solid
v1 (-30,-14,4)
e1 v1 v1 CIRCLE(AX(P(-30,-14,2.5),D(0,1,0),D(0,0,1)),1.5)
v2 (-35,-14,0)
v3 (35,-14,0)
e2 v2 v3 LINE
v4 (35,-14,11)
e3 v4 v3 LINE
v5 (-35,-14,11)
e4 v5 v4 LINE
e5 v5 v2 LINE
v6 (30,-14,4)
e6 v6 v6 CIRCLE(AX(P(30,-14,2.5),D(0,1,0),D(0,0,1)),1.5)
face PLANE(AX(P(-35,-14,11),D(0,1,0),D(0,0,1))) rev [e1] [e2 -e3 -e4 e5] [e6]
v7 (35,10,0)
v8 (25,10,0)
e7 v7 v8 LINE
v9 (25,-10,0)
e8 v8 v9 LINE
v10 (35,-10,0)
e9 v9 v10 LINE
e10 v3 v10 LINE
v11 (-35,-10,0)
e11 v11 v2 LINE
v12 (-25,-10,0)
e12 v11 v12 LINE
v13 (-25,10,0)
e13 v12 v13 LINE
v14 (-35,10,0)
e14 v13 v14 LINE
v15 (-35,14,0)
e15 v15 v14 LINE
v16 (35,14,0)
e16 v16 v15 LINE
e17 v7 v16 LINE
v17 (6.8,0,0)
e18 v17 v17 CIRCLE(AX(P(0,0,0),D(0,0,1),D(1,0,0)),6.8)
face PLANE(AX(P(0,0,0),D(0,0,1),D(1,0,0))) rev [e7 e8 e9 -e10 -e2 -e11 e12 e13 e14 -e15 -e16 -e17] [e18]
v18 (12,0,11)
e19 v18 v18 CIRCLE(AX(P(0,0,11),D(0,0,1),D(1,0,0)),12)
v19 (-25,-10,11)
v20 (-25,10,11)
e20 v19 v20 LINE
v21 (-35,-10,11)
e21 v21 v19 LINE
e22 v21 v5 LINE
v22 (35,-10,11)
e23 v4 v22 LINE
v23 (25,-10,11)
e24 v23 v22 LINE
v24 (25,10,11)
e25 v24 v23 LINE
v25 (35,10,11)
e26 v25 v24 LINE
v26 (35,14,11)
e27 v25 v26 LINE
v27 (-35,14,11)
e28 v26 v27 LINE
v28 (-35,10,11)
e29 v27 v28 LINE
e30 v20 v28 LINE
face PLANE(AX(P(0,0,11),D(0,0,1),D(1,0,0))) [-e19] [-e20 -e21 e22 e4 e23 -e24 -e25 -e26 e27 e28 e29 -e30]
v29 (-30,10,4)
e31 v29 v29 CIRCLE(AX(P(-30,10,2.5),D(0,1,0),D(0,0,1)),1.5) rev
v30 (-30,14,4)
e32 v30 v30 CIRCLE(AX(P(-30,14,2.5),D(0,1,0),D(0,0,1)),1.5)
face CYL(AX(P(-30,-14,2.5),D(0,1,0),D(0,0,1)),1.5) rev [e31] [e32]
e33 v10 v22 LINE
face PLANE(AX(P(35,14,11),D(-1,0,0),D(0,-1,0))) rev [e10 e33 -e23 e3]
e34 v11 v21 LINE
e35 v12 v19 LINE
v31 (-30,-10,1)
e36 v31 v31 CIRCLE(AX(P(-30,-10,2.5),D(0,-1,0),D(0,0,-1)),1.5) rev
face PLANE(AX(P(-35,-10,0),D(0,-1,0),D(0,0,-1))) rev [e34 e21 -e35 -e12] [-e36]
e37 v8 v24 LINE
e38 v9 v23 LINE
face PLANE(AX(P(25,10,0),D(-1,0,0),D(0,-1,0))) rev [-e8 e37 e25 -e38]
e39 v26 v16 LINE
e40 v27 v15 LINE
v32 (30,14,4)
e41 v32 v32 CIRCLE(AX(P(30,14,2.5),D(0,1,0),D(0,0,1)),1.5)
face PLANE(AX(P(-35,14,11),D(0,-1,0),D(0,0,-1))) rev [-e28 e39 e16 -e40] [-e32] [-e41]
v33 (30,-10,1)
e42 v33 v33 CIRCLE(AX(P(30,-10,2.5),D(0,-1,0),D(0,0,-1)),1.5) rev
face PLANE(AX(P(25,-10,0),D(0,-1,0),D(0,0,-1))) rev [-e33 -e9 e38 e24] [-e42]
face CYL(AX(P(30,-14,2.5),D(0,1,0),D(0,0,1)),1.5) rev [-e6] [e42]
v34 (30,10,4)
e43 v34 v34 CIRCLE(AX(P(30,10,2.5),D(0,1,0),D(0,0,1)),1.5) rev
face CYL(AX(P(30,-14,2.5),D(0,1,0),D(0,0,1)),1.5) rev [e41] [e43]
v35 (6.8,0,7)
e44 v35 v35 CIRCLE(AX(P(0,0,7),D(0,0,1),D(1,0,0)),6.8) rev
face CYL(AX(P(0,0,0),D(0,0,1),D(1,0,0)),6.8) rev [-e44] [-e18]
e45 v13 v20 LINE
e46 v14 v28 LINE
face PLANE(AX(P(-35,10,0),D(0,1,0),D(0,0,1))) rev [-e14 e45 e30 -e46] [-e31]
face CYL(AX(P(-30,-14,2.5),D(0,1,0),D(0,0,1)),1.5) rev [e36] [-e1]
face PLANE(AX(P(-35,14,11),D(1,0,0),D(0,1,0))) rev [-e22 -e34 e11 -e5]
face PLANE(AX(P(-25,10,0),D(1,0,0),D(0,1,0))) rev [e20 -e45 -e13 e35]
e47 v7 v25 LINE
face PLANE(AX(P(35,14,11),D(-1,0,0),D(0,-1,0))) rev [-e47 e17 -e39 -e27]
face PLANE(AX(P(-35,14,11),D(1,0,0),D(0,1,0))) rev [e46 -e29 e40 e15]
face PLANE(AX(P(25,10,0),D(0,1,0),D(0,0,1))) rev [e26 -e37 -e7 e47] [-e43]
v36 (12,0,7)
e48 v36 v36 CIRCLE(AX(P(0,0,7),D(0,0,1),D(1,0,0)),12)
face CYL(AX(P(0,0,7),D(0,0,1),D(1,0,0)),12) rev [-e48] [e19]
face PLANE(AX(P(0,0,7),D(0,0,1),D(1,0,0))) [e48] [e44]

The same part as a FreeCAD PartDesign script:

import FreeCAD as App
import Part
import Sketcher
Q = App.Units.Quantity


def add_polygon(sketch, points):
    """Adds a closed chain of lines whose ends are joined by coincident constraints."""
    first, n = sketch.GeometryCount, len(points)
    for a, b in zip(points, points[1:] + points[:1]):
        sketch.addGeometry(Part.LineSegment(App.Vector(*a, 0), App.Vector(*b, 0)), False)
    for i in range(n):
        sketch.addConstraint(Sketcher.Constraint("Coincident", first + i, 2, first + (i + 1) % n, 1))

doc = App.newDocument("Part")
params = doc.addObject("Spreadsheet::Sheet", "Params")
for row, (alias, value) in enumerate([
    ("sketch1_width", "70 mm"),
    ("sketch1_height", "28 mm"),
    ("pad1_length", "11 mm"),
    ("sketch2_diameter", "3 mm"),
    ("sketch3_diameter", "13.6 mm"),
    ("sketch4_diameter", "24 mm"),
    ("pocket3_length", "4 mm"),
    ("sketch5_width", "10 mm"),
    ("sketch5_height", "20 mm"),
    ("sketch6_width", "10 mm"),
    ("sketch6_height", "20 mm"),
], start=1):
    params.set(f"A{row}", alias)
    params.set(f"B{row}", "=" + value)
    params.setAlias(f"B{row}", alias)

body = doc.addObject("PartDesign::Body", "Body")

# Sketch on XY plane
sketch1 = body.newObject("Sketcher::SketchObject", "Sketch")
sketch1.AttachmentSupport = (doc.getObject("XY_Plane"), [""])
sketch1.MapMode = "FlatFace"
add_polygon(sketch1, [(-35, 14), (-35, -14), (35, -14), (35, 14)])  # lines 0-3
sketch1.addConstraint(Sketcher.Constraint("Vertical", 0))
sketch1.addConstraint(Sketcher.Constraint("Horizontal", 1))
sketch1.addConstraint(Sketcher.Constraint("Vertical", 2))
sketch1.addConstraint(Sketcher.Constraint("Horizontal", 3))
sketch1.addConstraint(Sketcher.Constraint("Symmetric", 0, 2, 2, 2, -1, 1))
sketch1.addConstraint(Sketcher.Constraint("DistanceX", 1, 1, 1, 2, Q("70 mm")))
sketch1.addConstraint(Sketcher.Constraint("DistanceY", 0, 2, 0, 1, Q("28 mm")))
sketch1.setExpression("Constraints[9]", "Params.sketch1_width")
sketch1.setExpression("Constraints[10]", "Params.sketch1_height")
pad1 = body.newObject("PartDesign::Pad", "Pad")
pad1.Profile = sketch1
pad1.setExpression("Length", "Params.pad1_length")

# Sketch on XZ plane
sketch2 = body.newObject("Sketcher::SketchObject", "Sketch001")
sketch2.AttachmentSupport = (doc.getObject("XZ_Plane"), [""])
sketch2.MapMode = "FlatFace"
sketch2.AttachmentOffset = App.Placement(App.Vector(0, 0, -14), App.Rotation())
sketch2.addGeometry(Part.Circle(App.Vector(30, 2.5, 0), App.Vector(0, 0, 1), 1.5), False)
sketch2.addGeometry(Part.Circle(App.Vector(-30, 2.5, 0), App.Vector(0, 0, 1), 1.5), False)
sketch2.addConstraint(Sketcher.Constraint("Equal", 0, 1))
sketch2.addConstraint(Sketcher.Constraint("Symmetric", 0, 3, 1, 3, -2))
sketch2.addConstraint(Sketcher.Constraint("Diameter", 0, Q("3 mm")))
sketch2.addConstraint(Sketcher.Constraint("DistanceX", -1, 1, 0, 3, Q("30 mm")))
sketch2.addConstraint(Sketcher.Constraint("DistanceY", -1, 1, 0, 3, Q("2.5 mm")))
sketch2.setExpression("Constraints[2]", "Params.sketch2_diameter")
pocket1 = body.newObject("PartDesign::Pocket", "Pocket")
pocket1.Profile = sketch2
pocket1.Type = "ThroughAll"
pocket1.Reversed = True

# Sketch on XY plane
sketch3 = body.newObject("Sketcher::SketchObject", "Sketch002")
sketch3.AttachmentSupport = (doc.getObject("XY_Plane"), [""])
sketch3.MapMode = "FlatFace"
sketch3.AttachmentOffset = App.Placement(App.Vector(0, 0, 11), App.Rotation())
sketch3.addGeometry(Part.Circle(App.Vector(0, 0, 0), App.Vector(0, 0, 1), 7), False)
sketch3.addConstraint(Sketcher.Constraint("Coincident", 0, 3, -1, 1))
sketch3.addConstraint(Sketcher.Constraint("Diameter", 0, Q("13.6 mm")))
sketch3.setExpression("Constraints[1]", "Params.sketch3_diameter")
pocket2 = body.newObject("PartDesign::Pocket", "Pocket001")
pocket2.Profile = sketch3
pocket2.Type = "ThroughAll"

# Sketch on XY plane
sketch4 = body.newObject("Sketcher::SketchObject", "Sketch003")
sketch4.AttachmentSupport = (doc.getObject("XY_Plane"), [""])
sketch4.MapMode = "FlatFace"
sketch4.AttachmentOffset = App.Placement(App.Vector(0, 0, 11), App.Rotation())
sketch4.addGeometry(Part.Circle(App.Vector(0, 0, 0), App.Vector(0, 0, 1), 12), False)
sketch4.addConstraint(Sketcher.Constraint("Coincident", 0, 3, -1, 1))
sketch4.addConstraint(Sketcher.Constraint("Diameter", 0, Q("24 mm")))
sketch4.setExpression("Constraints[1]", "Params.sketch4_diameter")
pocket3 = body.newObject("PartDesign::Pocket", "Pocket002")
pocket3.Profile = sketch4
pocket3.setExpression("Length", "Params.pocket3_length")

# Sketch on XY plane
sketch5 = body.newObject("Sketcher::SketchObject", "Sketch004")
sketch5.AttachmentSupport = (doc.getObject("XY_Plane"), [""])
sketch5.MapMode = "FlatFace"
sketch5.AttachmentOffset = App.Placement(App.Vector(0, 0, 11), App.Rotation())
add_polygon(sketch5, [(-35, 10), (-35, -10), (-25, -10), (-25, 10)])  # lines 0-3
sketch5.addConstraint(Sketcher.Constraint("Vertical", 0))
sketch5.addConstraint(Sketcher.Constraint("Horizontal", 1))
sketch5.addConstraint(Sketcher.Constraint("Vertical", 2))
sketch5.addConstraint(Sketcher.Constraint("Horizontal", 3))
sketch5.addConstraint(Sketcher.Constraint("DistanceX", 1, 1, 1, 2, Q("10 mm")))
sketch5.addConstraint(Sketcher.Constraint("DistanceY", 0, 2, 0, 1, Q("20 mm")))
sketch5.addConstraint(Sketcher.Constraint("DistanceX", 0, 2, -1, 1, Q("35 mm")))
sketch5.addConstraint(Sketcher.Constraint("DistanceY", 0, 2, -1, 1, Q("10 mm")))
sketch5.setExpression("Constraints[8]", "Params.sketch5_width")
sketch5.setExpression("Constraints[9]", "Params.sketch5_height")
pocket4 = body.newObject("PartDesign::Pocket", "Pocket003")
pocket4.Profile = sketch5
pocket4.Type = "ThroughAll"

# Sketch on XY plane
sketch6 = body.newObject("Sketcher::SketchObject", "Sketch005")
sketch6.AttachmentSupport = (doc.getObject("XY_Plane"), [""])
sketch6.MapMode = "FlatFace"
sketch6.AttachmentOffset = App.Placement(App.Vector(0, 0, 11), App.Rotation())
add_polygon(sketch6, [(25, 10), (25, -10), (35, -10), (35, 10)])  # lines 0-3
sketch6.addConstraint(Sketcher.Constraint("Vertical", 0))
sketch6.addConstraint(Sketcher.Constraint("Horizontal", 1))
sketch6.addConstraint(Sketcher.Constraint("Vertical", 2))
sketch6.addConstraint(Sketcher.Constraint("Horizontal", 3))
sketch6.addConstraint(Sketcher.Constraint("DistanceX", 1, 1, 1, 2, Q("10 mm")))
sketch6.addConstraint(Sketcher.Constraint("DistanceY", 0, 2, 0, 1, Q("20 mm")))
sketch6.addConstraint(Sketcher.Constraint("DistanceX", -1, 1, 0, 2, Q("25 mm")))
sketch6.addConstraint(Sketcher.Constraint("DistanceY", 0, 2, -1, 1, Q("10 mm")))
sketch6.setExpression("Constraints[8]", "Params.sketch6_width")
sketch6.setExpression("Constraints[9]", "Params.sketch6_height")
pocket5 = body.newObject("PartDesign::Pocket", "Pocket004")
pocket5.Profile = sketch6
pocket5.Type = "ThroughAll"

doc.recompute()
